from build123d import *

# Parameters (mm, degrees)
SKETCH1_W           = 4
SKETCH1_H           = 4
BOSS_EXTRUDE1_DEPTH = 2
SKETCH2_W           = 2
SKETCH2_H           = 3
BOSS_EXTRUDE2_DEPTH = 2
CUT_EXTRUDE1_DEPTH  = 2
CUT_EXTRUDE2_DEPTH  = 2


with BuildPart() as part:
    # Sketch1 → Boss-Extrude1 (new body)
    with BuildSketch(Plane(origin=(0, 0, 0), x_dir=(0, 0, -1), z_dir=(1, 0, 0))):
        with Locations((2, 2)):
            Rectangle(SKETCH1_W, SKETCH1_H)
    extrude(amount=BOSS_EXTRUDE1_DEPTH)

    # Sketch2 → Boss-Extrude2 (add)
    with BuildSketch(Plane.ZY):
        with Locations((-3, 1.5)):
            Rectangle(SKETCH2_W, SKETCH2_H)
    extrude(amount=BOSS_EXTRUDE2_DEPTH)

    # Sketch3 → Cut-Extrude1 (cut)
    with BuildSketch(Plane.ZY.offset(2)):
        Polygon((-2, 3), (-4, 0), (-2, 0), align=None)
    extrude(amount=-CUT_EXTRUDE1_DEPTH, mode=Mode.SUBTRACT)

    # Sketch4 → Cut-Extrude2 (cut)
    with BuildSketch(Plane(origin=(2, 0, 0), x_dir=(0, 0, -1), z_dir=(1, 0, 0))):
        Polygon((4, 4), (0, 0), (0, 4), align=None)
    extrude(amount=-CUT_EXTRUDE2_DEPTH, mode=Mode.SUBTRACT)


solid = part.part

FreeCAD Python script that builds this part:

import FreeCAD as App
import Part
import Sketcher
from FreeCAD import Vector


def add_polygon(sketch, points):
    """Adds a closed chain of lines whose ends are joined by coincident constraints."""
    first, n = sketch.GeometryCount, len(points)
    for a, b in zip(points, points[1:] + points[:1]):
        sketch.addGeometry(Part.LineSegment(App.Vector(*a, 0), App.Vector(*b, 0)), False)
    for i in range(n):
        sketch.addConstraint(Sketcher.Constraint("Coincident", first + i, 2, first + (i + 1) % n, 1))

doc = App.newDocument("Part")
body = doc.addObject("PartDesign::Body", "Body")

# Sketch on YZ plane
sketch1 = doc.addObject("Sketcher::SketchObject", "Sketch")
body.addObject(sketch1)
sketch1.AttachmentSupport = (doc.YZ_Plane, [""])
sketch1.MapMode = "FlatFace"
add_polygon(sketch1, [(4, 0), (0, 0), (0, -4), (4, -4)])  # lines 0-3
sketch1.addConstraint(Sketcher.Constraint("Horizontal", 0))
sketch1.addConstraint(Sketcher.Constraint("Vertical", 1))
sketch1.addConstraint(Sketcher.Constraint("Horizontal", 2))
sketch1.addConstraint(Sketcher.Constraint("Vertical", 3))
sketch1.addConstraint(Sketcher.Constraint("Coincident", 0, 2, -1, 1))
sketch1.addConstraint(Sketcher.Constraint("Equal", 2, 1))
sketch1.addConstraint(Sketcher.Constraint("DistanceX", 0, 2, 0, 1, 4.0))
pad1 = doc.addObject("PartDesign::Pad", "Pad")
body.addObject(pad1)
pad1.Profile = sketch1
pad1.Length = 2

# Sketch on YZ plane
sketch2 = doc.addObject("Sketcher::SketchObject", "Sketch001")
body.addObject(sketch2)
sketch2.AttachmentSupport = (doc.YZ_Plane, [""])
sketch2.MapMode = "FlatFace"
add_polygon(sketch2, [(3, -4), (0, -4), (0, -2), (3, -2)])  # lines 0-3
sketch2.addConstraint(Sketcher.Constraint("Horizontal", 0))
sketch2.addConstraint(Sketcher.Constraint("Vertical", 1))
sketch2.addConstraint(Sketcher.Constraint("Horizontal", 2))
sketch2.addConstraint(Sketcher.Constraint("Vertical", 3))
sketch2.addConstraint(Sketcher.Constraint("PointOnObject", 0, 2, -2))
sketch2.addConstraint(Sketcher.Constraint("DistanceX", 0, 2, 0, 1, 3.0))
sketch2.addConstraint(Sketcher.Constraint("DistanceY", 1, 1, 1, 2, 2.0))
sketch2.addConstraint(Sketcher.Constraint("DistanceY", 0, 2, -1, 1, 4.0))
pad2 = doc.addObject("PartDesign::Pad", "Pad001")
body.addObject(pad2)
pad2.Profile = sketch2
pad2.Length = 2
pad2.Reversed = True

# Sketch on YZ plane
sketch3 = doc.addObject("Sketcher::SketchObject", "Sketch002")
body.addObject(sketch3)
sketch3.AttachmentSupport = (doc.YZ_Plane, [""])
sketch3.MapMode = "FlatFace"
sketch3.AttachmentOffset = App.Placement(Vector(0, 0, -2), App.Rotation())
add_polygon(sketch3, [(3, -2), (0, -4), (0, -2)])  # lines 0-2
sketch3.addConstraint(Sketcher.Constraint("Vertical", 1))
sketch3.addConstraint(Sketcher.Constraint("Horizontal", 2))
sketch3.addConstraint(Sketcher.Constraint("PointOnObject", 0, 2, -2))
sketch3.addConstraint(Sketcher.Constraint("DistanceX", 2, 1, 2, 2, 3.0))
sketch3.addConstraint(Sketcher.Constraint("DistanceY", 1, 1, 1, 2, 2.0))
sketch3.addConstraint(Sketcher.Constraint("DistanceY", 0, 2, -1, 1, 4.0))
pocket1 = doc.addObject("PartDesign::Pocket", "Pocket")
body.addObject(pocket1)
pocket1.Profile = sketch3
pocket1.Length = 2
pocket1.Reversed = True

# Sketch on YZ plane
sketch4 = doc.addObject("Sketcher::SketchObject", "Sketch003")
body.addObject(sketch4)
sketch4.AttachmentSupport = (doc.YZ_Plane, [""])
sketch4.MapMode = "FlatFace"
sketch4.AttachmentOffset = App.Placement(Vector(0, 0, 2), App.Rotation())
add_polygon(sketch4, [(0, 0), (4, -4), (4, 0)])  # lines 0-2
sketch4.addConstraint(Sketcher.Constraint("Vertical", 1))
sketch4.addConstraint(Sketcher.Constraint("Horizontal", 2))
sketch4.addConstraint(Sketcher.Constraint("Coincident", 2, 2, -1, 1))
sketch4.addConstraint(Sketcher.Constraint("Equal", 2, 1))
sketch4.addConstraint(Sketcher.Constraint("DistanceX", 2, 2, 2, 1, 4.0))
pocket2 = doc.addObject("PartDesign::Pocket", "Pocket001")
body.addObject(pocket2)
pocket2.Profile = sketch4
pocket2.Length = 2

doc.recompute()
